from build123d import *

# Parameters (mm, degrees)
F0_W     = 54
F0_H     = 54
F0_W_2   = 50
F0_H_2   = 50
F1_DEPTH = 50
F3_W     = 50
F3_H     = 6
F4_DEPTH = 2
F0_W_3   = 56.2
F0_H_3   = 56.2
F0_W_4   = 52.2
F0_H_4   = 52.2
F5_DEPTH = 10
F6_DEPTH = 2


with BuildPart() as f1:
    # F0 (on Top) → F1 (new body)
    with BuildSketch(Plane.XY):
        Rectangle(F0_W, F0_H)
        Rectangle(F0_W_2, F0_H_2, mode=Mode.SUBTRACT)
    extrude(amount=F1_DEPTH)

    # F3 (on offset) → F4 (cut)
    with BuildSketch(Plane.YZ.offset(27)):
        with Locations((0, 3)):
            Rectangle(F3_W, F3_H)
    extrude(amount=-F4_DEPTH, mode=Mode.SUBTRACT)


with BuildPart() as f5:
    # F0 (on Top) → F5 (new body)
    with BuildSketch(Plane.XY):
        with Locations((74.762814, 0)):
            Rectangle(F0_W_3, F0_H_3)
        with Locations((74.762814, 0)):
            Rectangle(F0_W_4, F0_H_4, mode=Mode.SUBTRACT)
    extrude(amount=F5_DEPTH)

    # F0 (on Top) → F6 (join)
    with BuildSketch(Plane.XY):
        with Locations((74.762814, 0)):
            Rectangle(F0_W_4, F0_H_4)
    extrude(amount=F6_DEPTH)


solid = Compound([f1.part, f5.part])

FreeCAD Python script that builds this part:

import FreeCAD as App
import Part
import Sketcher
from FreeCAD import Vector

doc = App.newDocument("Part")
body = doc.addObject("PartDesign::Body", "Body")

# Sketch on XY plane
sketch1 = body.newObject("Sketcher::SketchObject", "Sketch")
sketch1.AttachmentSupport = (doc.getObject("XY_Plane"), [""])
sketch1.MapMode = "FlatFace"
sketch1.addGeometry([
    Part.LineSegment(Vector(-27, 27, 0), Vector(-27, -27, 0)),  # 0
    Part.LineSegment(Vector(-27, -27, 0), Vector(27, -27, 0)),  # 1
    Part.LineSegment(Vector(27, -27, 0), Vector(27, 27, 0)),  # 2
    Part.LineSegment(Vector(27, 27, 0), Vector(-27, 27, 0)),  # 3
    Part.LineSegment(Vector(25, -25, 0), Vector(-25, -25, 0)),  # 4
    Part.LineSegment(Vector(-25, -25, 0), Vector(-25, 25, 0)),  # 5
    Part.LineSegment(Vector(-25, 25, 0), Vector(25, 25, 0)),  # 6
    Part.LineSegment(Vector(25, 25, 0), Vector(25, -25, 0)),  # 7
], False)
sketch1.addConstraint([
    Sketcher.Constraint("Coincident", 0, 2, 1, 1),
    Sketcher.Constraint("Coincident", 1, 2, 2, 1),
    Sketcher.Constraint("Coincident", 2, 2, 3, 1),
    Sketcher.Constraint("Coincident", 3, 2, 0, 1),
    Sketcher.Constraint("Coincident", 4, 2, 5, 1),
    Sketcher.Constraint("Coincident", 5, 2, 6, 1),
    Sketcher.Constraint("Coincident", 6, 2, 7, 1),
    Sketcher.Constraint("Coincident", 7, 2, 4, 1),
    Sketcher.Constraint("Vertical", 0),
    Sketcher.Constraint("Horizontal", 1),
    Sketcher.Constraint("Vertical", 2),
    Sketcher.Constraint("Horizontal", 3),
    Sketcher.Constraint("Horizontal", 4),
    Sketcher.Constraint("Vertical", 5),
    Sketcher.Constraint("Horizontal", 6),
    Sketcher.Constraint("Vertical", 7),
    Sketcher.Constraint("Symmetric", 0, 2, 2, 2, -1, 1),
    Sketcher.Constraint("Symmetric", 4, 2, 6, 2, -1, 1),
    Sketcher.Constraint("Equal", 3, 0),
    Sketcher.Constraint("Equal", 6, 5),
    Sketcher.Constraint("DistanceX", 1, 1, 1, 2, 54.0),
    Sketcher.Constraint("DistanceX", 4, 2, 4, 1, 50.0),
])
pad1 = body.newObject("PartDesign::Pad", "Pad")
pad1.Profile = sketch1
pad1.Length = 50

# Sketch on YZ plane
sketch2 = body.newObject("Sketcher::SketchObject", "Sketch001")
sketch2.AttachmentSupport = (doc.getObject("YZ_Plane"), [""])
sketch2.MapMode = "FlatFace"
sketch2.AttachmentOffset = App.Placement(Vector(0, 0, 27), App.Rotation())
sketch2.addGeometry([
    Part.LineSegment(Vector(-25, 6, 0), Vector(-25, 0, 0)),
    Part.LineSegment(Vector(-25, 0, 0), Vector(25, 0, 0)),
    Part.LineSegment(Vector(25, 0, 0), Vector(25, 6, 0)),
    Part.LineSegment(Vector(25, 6, 0), Vector(-25, 6, 0)),
], False)
sketch2.addConstraint([
    Sketcher.Constraint("Coincident", 0, 2, 1, 1),
    Sketcher.Constraint("Coincident", 1, 2, 2, 1),
    Sketcher.Constraint("Coincident", 2, 2, 3, 1),
    Sketcher.Constraint("Coincident", 3, 2, 0, 1),
    Sketcher.Constraint("Vertical", 0),
    Sketcher.Constraint("Horizontal", 1),
    Sketcher.Constraint("Vertical", 2),
    Sketcher.Constraint("Horizontal", 3),
    Sketcher.Constraint("Symmetric", 0, 2, 1, 2, -1, 1),
    Sketcher.Constraint("DistanceX", 1, 1, 1, 2, 50.0),
    Sketcher.Constraint("DistanceY", 0, 2, 0, 1, 6.0),
])
pocket1 = body.newObject("PartDesign::Pocket", "Pocket")
pocket1.Profile = sketch2
pocket1.Length = 2
body2 = doc.addObject("PartDesign::Body", "Body001")

# Sketch on XY plane
sketch3 = body2.newObject("Sketcher::SketchObject", "Sketch002")
sketch3.AttachmentSupport = (doc.getObject("XY_Plane001"), [""])
sketch3.MapMode = "FlatFace"
sketch3.addGeometry([
    Part.LineSegment(Vector(47, 28, 0), Vector(47, -28, 0)),  # 0
    Part.LineSegment(Vector(47, -28, 0), Vector(103, -28, 0)),  # 1
    Part.LineSegment(Vector(103, -28, 0), Vector(103, 28, 0)),  # 2
    Part.LineSegment(Vector(103, 28, 0), Vector(47, 28, 0)),  # 3
    Part.LineSegment(Vector(101, -26, 0), Vector(49, -26, 0)),  # 4
    Part.LineSegment(Vector(49, -26, 0), Vector(49, 26, 0)),  # 5
    Part.LineSegment(Vector(49, 26, 0), Vector(101, 26, 0)),  # 6
    Part.LineSegment(Vector(101, 26, 0), Vector(101, -26, 0)),  # 7
], False)
sketch3.addConstraint([
    Sketcher.Constraint("Coincident", 0, 2, 1, 1),
    Sketcher.Constraint("Coincident", 1, 2, 2, 1),
    Sketcher.Constraint("Coincident", 2, 2, 3, 1),
    Sketcher.Constraint("Coincident", 3, 2, 0, 1),
    Sketcher.Constraint("Coincident", 4, 2, 5, 1),
    Sketcher.Constraint("Coincident", 5, 2, 6, 1),
    Sketcher.Constraint("Coincident", 6, 2, 7, 1),
    Sketcher.Constraint("Coincident", 7, 2, 4, 1),
    Sketcher.Constraint("Vertical", 0),
    Sketcher.Constraint("Horizontal", 1),
    Sketcher.Constraint("Vertical", 2),
    Sketcher.Constraint("Horizontal", 3),
    Sketcher.Constraint("Horizontal", 4),
    Sketcher.Constraint("Vertical", 5),
    Sketcher.Constraint("Horizontal", 6),
    Sketcher.Constraint("Vertical", 7),
    Sketcher.Constraint("Equal", 3, 0),
    Sketcher.Constraint("Equal", 6, 5),
    Sketcher.Constraint("DistanceX", 1, 1, 1, 2, 56.2),
    Sketcher.Constraint("DistanceX", 4, 2, 4, 1, 52.2),
    Sketcher.Constraint("DistanceX", 0, 2, 4, 2, 2.0),
    Sketcher.Constraint("DistanceY", 0, 2, 4, 2, 2.0),
    Sketcher.Constraint("DistanceY", 0, 2, -1, 1, 28.1),
    Sketcher.Constraint("DistanceX", -1, 1, 0, 2, 46.662814),
])
pad2 = body2.newObject("PartDesign::Pad", "Pad001")
pad2.Profile = sketch3
pad2.Length = 10

# Sketch on XY plane
sketch4 = body2.newObject("Sketcher::SketchObject", "Sketch003")
sketch4.AttachmentSupport = (doc.getObject("XY_Plane001"), [""])
sketch4.MapMode = "FlatFace"
sketch4.addGeometry([
    Part.LineSegment(Vector(49, 26, 0), Vector(49, -26, 0)),
    Part.LineSegment(Vector(49, -26, 0), Vector(101, -26, 0)),
    Part.LineSegment(Vector(101, -26, 0), Vector(101, 26, 0)),
    Part.LineSegment(Vector(101, 26, 0), Vector(49, 26, 0)),
], False)
sketch4.addConstraint([
    Sketcher.Constraint("Coincident", 0, 2, 1, 1),
    Sketcher.Constraint("Coincident", 1, 2, 2, 1),
    Sketcher.Constraint("Coincident", 2, 2, 3, 1),
    Sketcher.Constraint("Coincident", 3, 2, 0, 1),
    Sketcher.Constraint("Vertical", 0),
    Sketcher.Constraint("Horizontal", 1),
    Sketcher.Constraint("Vertical", 2),
    Sketcher.Constraint("Horizontal", 3),
    Sketcher.Constraint("Equal", 3, 0),
    Sketcher.Constraint("DistanceX", 1, 1, 1, 2, 52.2),
    Sketcher.Constraint("DistanceY", 0, 2, -1, 1, 26.1),
    Sketcher.Constraint("DistanceX", -1, 1, 0, 2, 48.662814),
])
pad3 = body2.newObject("PartDesign::Pad", "Pad002")
pad3.Profile = sketch4
pad3.Length = 2

doc.recompute()
